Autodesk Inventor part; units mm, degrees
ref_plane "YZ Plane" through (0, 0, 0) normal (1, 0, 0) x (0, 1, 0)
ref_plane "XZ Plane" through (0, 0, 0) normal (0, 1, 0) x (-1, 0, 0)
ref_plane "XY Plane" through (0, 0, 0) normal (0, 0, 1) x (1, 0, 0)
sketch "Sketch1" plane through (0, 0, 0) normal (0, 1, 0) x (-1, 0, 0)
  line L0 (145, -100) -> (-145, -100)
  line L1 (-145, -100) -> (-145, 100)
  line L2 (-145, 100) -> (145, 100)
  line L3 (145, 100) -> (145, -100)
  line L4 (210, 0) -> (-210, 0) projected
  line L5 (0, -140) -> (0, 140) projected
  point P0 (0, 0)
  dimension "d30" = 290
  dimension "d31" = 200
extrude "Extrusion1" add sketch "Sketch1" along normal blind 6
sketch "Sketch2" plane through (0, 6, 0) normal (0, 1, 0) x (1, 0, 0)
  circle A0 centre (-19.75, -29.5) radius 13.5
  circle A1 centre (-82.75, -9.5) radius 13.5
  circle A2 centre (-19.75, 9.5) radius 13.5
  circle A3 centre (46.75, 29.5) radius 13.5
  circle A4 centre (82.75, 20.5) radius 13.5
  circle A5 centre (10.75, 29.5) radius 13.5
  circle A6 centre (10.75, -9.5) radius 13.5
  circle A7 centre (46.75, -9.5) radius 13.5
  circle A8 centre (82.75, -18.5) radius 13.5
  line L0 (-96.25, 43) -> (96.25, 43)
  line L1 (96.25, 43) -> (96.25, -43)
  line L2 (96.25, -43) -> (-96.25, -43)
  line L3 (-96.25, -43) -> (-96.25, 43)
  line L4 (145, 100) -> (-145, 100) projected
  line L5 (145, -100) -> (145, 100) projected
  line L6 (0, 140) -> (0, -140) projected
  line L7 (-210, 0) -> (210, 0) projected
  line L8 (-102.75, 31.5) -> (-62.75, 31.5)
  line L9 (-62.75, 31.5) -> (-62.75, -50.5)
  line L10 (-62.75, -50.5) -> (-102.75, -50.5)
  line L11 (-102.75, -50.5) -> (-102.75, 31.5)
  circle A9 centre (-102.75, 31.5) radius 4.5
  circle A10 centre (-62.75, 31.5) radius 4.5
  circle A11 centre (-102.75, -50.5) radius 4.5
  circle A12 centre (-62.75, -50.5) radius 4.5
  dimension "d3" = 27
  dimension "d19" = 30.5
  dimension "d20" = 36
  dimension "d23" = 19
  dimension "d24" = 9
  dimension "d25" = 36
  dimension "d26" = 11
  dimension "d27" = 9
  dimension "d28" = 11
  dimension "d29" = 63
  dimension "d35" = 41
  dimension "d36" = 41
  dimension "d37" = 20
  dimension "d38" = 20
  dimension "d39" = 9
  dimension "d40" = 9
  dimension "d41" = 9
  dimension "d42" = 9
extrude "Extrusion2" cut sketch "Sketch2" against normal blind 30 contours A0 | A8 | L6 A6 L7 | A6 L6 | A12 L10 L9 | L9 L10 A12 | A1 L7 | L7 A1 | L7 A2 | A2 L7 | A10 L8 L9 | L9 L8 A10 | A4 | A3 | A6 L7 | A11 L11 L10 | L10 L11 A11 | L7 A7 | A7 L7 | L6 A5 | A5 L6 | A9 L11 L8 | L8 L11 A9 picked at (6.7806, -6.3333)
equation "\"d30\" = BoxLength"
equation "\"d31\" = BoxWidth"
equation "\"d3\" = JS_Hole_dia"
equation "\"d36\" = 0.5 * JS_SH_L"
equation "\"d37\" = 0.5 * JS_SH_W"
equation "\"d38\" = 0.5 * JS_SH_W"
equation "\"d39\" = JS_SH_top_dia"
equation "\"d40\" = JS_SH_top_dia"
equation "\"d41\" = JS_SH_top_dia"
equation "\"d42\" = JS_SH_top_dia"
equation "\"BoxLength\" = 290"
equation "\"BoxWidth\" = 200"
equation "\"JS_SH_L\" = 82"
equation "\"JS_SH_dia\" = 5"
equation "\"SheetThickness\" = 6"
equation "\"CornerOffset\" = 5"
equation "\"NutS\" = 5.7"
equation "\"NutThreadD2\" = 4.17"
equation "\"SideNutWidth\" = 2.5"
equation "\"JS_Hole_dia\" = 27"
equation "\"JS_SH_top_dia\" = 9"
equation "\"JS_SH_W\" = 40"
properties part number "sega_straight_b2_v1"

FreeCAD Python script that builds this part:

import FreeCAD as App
import Part
import Sketcher

V = App.Vector
Q = App.Units.Quantity


def add_polygon(sketch, points):
    """Adds a closed chain of lines whose ends are joined by coincident constraints."""
    first, n = sketch.GeometryCount, len(points)
    for a, b in zip(points, points[1:] + points[:1]):
        sketch.addGeometry(Part.LineSegment(App.Vector(*a, 0), App.Vector(*b, 0)), False)
    for i in range(n):
        sketch.addConstraint(Sketcher.Constraint("Coincident", first + i, 2, first + (i + 1) % n, 1))

doc = App.newDocument("Part")
body = doc.addObject("PartDesign::Body", "Body")

sketch1 = body.newObject("Sketcher::SketchObject", "Sketch")
sketch1.AttachmentSupport = (doc.getObject("XZ_Plane"), [""])
sketch1.MapMode = "FlatFace"
add_polygon(sketch1, [(-145, -100), (-145, 100), (145, 100), (145, -100)])
sketch1.addConstraint(Sketcher.Constraint("Vertical", 0))
sketch1.addConstraint(Sketcher.Constraint("Horizontal", 1))
sketch1.addConstraint(Sketcher.Constraint("Vertical", 2))
sketch1.addConstraint(Sketcher.Constraint("Horizontal", 3))
sketch1.addConstraint(Sketcher.Constraint("Symmetric", 0, 2, 2, 2, -1, 1))
sketch1.addConstraint(Sketcher.Constraint("DistanceX", 1, 1, 1, 2, Q("290 mm")))
sketch1.addConstraint(Sketcher.Constraint("DistanceY", 0, 1, 0, 2, Q("200 mm")))
pad1 = body.newObject("PartDesign::Pad", "Pad")
pad1.Profile = sketch1
pad1.Length = 6
pad1.Reversed = True

sketch2 = body.newObject("Sketcher::SketchObject", "Sketch001")
sketch2.AttachmentSupport = (doc.getObject("XZ_Plane"), [""])
sketch2.MapMode = "FlatFace"
sketch2.AttachmentOffset = App.Placement(V(0, 0, -6), App.Rotation())
sketch2.addGeometry(Part.Circle(V(-19.8, 29.5, 0), V(0, 0, 1), 13.5), False)
sketch2.addGeometry(Part.Circle(V(82.8, 18.5, 0), V(0, 0, 1), 13.5), False)
sketch2.addGeometry(Part.Circle(V(10.8, 9.5, 0), V(0, 0, 1), 13.5), False)
sketch2.addGeometry(Part.Circle(V(-62.8, 50.5, 0), V(0, 0, 1), 4.5), False)
sketch2.addGeometry(Part.Circle(V(-82.8, 9.5, 0), V(0, 0, 1), 13.5), False)
sketch2.addGeometry(Part.Circle(V(-19.8, -9.5, 0), V(0, 0, 1), 13.5), False)
sketch2.addGeometry(Part.Circle(V(-62.8, -31.5, 0), V(0, 0, 1), 4.5), False)
sketch2.addGeometry(Part.Circle(V(82.8, -20.5, 0), V(0, 0, 1), 13.5), False)
sketch2.addGeometry(Part.Circle(V(46.8, -29.5, 0), V(0, 0, 1), 13.5), False)
sketch2.addGeometry(Part.Circle(V(-102.8, 50.5, 0), V(0, 0, 1), 4.5), False)
sketch2.addGeometry(Part.Circle(V(46.8, 9.5, 0), V(0, 0, 1), 13.5), False)
sketch2.addGeometry(Part.Circle(V(10.8, -29.5, 0), V(0, 0, 1), 13.5), False)
sketch2.addGeometry(Part.Circle(V(-102.8, -31.5, 0), V(0, 0, 1), 4.5), False)
sketch2.addConstraint(Sketcher.Constraint("Equal", 0, 1))
sketch2.addConstraint(Sketcher.Constraint("Equal", 1, 2))
sketch2.addConstraint(Sketcher.Constraint("Equal", 2, 4))
sketch2.addConstraint(Sketcher.Constraint("Equal", 4, 5))
sketch2.addConstraint(Sketcher.Constraint("Equal", 3, 6))
sketch2.addConstraint(Sketcher.Constraint("Equal", 5, 7))
sketch2.addConstraint(Sketcher.Constraint("Equal", 7, 8))
sketch2.addConstraint(Sketcher.Constraint("Equal", 6, 9))
sketch2.addConstraint(Sketcher.Constraint("Equal", 8, 10))
sketch2.addConstraint(Sketcher.Constraint("Equal", 10, 11))
sketch2.addConstraint(Sketcher.Constraint("Equal", 9, 12))
sketch2.addConstraint(Sketcher.Constraint("Horizontal", 2, 3, 4, 3))
sketch2.addConstraint(Sketcher.Constraint("Horizontal", 3, 3, 9, 3))
sketch2.addConstraint(Sketcher.Constraint("Horizontal", 4, 3, 10, 3))
sketch2.addConstraint(Sketcher.Constraint("Horizontal", 8, 3, 11, 3))
sketch2.addConstraint(Sketcher.Constraint("Horizontal", 6, 3, 12, 3))
sketch2.addConstraint(Sketcher.Constraint("Vertical", 0, 3, 5, 3))
sketch2.addConstraint(Sketcher.Constraint("Vertical", 3, 3, 6, 3))
sketch2.addConstraint(Sketcher.Constraint("Vertical", 1, 3, 7, 3))
sketch2.addConstraint(Sketcher.Constraint("Vertical", 8, 3, 10, 3))
sketch2.addConstraint(Sketcher.Constraint("Vertical", 2, 3, 11, 3))
sketch2.addConstraint(Sketcher.Constraint("Vertical", 9, 3, 12, 3))
sketch2.addConstraint(Sketcher.Constraint("Diameter", 0, Q("27 mm")))
sketch2.addConstraint(Sketcher.Constraint("Diameter", 3, Q("9 mm")))
sketch2.addConstraint(Sketcher.Constraint("DistanceY", 1, 3, 0, 3, Q("11 mm")))
sketch2.addConstraint(Sketcher.Constraint("DistanceY", 2, 3, 0, 3, Q("20 mm")))
sketch2.addConstraint(Sketcher.Constraint("DistanceY", 2, 3, 3, 3, Q("41 mm")))
sketch2.addConstraint(Sketcher.Constraint("DistanceX", 4, 3, 3, 3, Q("20 mm")))
sketch2.addConstraint(Sketcher.Constraint("DistanceX", 4, 3, 0, 3, Q("63 mm")))
sketch2.addConstraint(Sketcher.Constraint("DistanceY", 5, 3, 2, 3, Q("19 mm")))
sketch2.addConstraint(Sketcher.Constraint("DistanceY", 6, 3, 4, 3, Q("41 mm")))
sketch2.addConstraint(Sketcher.Constraint("DistanceY", 7, 3, 5, 3, Q("11 mm")))
sketch2.addConstraint(Sketcher.Constraint("DistanceX", 8, 3, 7, 3, Q("36 mm")))
sketch2.addConstraint(Sketcher.Constraint("DistanceY", 8, 3, 7, 3, Q("9 mm")))
sketch2.addConstraint(Sketcher.Constraint("DistanceX", 2, 3, 8, 3, Q("36 mm")))
sketch2.addConstraint(Sketcher.Constraint("DistanceX", 9, 3, 4, 3, Q("20 mm")))
sketch2.addConstraint(Sketcher.Constraint("DistanceX", 0, 3, 2, 3, Q("30.5 mm")))
sketch2.addConstraint(Sketcher.Constraint("DistanceY", -1, 1, 0, 3, Q("29.5 mm")))
sketch2.addConstraint(Sketcher.Constraint("DistanceX", 0, 3, -1, 1, Q("19.75 mm")))
pocket1 = body.newObject("PartDesign::Pocket", "Pocket")
pocket1.Profile = sketch2
pocket1.Length = 30
pocket1.Reversed = True

doc.recompute()
